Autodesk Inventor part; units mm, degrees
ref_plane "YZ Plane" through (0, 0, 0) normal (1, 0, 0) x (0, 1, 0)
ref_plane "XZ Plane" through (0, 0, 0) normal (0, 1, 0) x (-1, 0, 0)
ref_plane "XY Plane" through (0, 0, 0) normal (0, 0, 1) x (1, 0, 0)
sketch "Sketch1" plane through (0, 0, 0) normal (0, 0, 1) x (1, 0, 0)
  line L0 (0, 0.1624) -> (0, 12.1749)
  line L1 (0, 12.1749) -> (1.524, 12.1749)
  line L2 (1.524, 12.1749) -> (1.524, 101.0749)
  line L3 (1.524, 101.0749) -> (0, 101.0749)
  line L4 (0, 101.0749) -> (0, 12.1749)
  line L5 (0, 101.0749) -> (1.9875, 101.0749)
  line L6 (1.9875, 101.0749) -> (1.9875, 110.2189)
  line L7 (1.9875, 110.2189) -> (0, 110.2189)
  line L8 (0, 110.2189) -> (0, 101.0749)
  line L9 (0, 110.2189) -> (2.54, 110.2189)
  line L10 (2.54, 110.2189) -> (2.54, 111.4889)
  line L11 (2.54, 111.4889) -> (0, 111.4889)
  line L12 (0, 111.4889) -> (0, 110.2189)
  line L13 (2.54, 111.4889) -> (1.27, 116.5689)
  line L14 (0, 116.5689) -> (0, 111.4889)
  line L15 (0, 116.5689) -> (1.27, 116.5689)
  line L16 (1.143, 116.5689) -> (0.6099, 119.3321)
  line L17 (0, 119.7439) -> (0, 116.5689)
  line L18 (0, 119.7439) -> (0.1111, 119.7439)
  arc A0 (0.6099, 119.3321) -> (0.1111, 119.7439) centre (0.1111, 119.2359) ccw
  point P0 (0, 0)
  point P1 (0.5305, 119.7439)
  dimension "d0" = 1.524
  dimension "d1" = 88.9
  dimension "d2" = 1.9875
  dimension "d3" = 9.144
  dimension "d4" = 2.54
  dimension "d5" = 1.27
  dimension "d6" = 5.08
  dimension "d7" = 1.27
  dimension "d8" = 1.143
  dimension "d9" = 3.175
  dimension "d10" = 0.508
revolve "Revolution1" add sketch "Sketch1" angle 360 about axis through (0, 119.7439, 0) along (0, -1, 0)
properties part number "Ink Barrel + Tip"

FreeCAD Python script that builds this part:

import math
import FreeCAD as App
import Part
import Sketcher

V = App.Vector
Q = App.Units.Quantity

doc = App.newDocument("Part")
body = doc.addObject("PartDesign::Body", "Body")

# Sketch on XY plane
sketch1 = body.newObject("Sketcher::SketchObject", "Sketch")
sketch1.AttachmentSupport = (doc.getObject("XY_Plane"), [""])
sketch1.MapMode = "FlatFace"
sketch1.addGeometry(Part.LineSegment(V(0, 12.17, 0), V(1.52, 12.17, 0)), False)
sketch1.addGeometry(Part.LineSegment(V(1.52, 12.17, 0), V(1.52, 101.07, 0)), False)
sketch1.addGeometry(Part.LineSegment(V(1.52, 101.07, 0), V(1.99, 101.07, 0)), False)
sketch1.addGeometry(Part.LineSegment(V(1.99, 101.07, 0), V(1.99, 110.22, 0)), False)
sketch1.addGeometry(Part.LineSegment(V(1.99, 110.22, 0), V(2.54, 110.22, 0)), False)
sketch1.addGeometry(Part.LineSegment(V(2.54, 110.22, 0), V(2.54, 111.49, 0)), False)
sketch1.addGeometry(Part.LineSegment(V(2.54, 111.49, 0), V(1.27, 116.57, 0)), False)
sketch1.addGeometry(Part.LineSegment(V(1.27, 116.57, 0), V(1.14, 116.57, 0)), False)
sketch1.addGeometry(Part.LineSegment(V(1.14, 116.57, 0), V(0.61, 119.33, 0)), False)
sketch1.addGeometry(Part.ArcOfCircle(Part.Circle(V(0.11, 119.24, 0), V(0, 0, 1), 0.51), math.radians(11), math.radians(90)), False)
sketch1.addGeometry(Part.LineSegment(V(0.11, 119.74, 0), V(0, 119.74, 0)), False)
sketch1.addGeometry(Part.LineSegment(V(0, 119.74, 0), V(0, 12.17, 0)), False)
sketch1.addConstraint(Sketcher.Constraint("Coincident", 0, 2, 1, 1))
sketch1.addConstraint(Sketcher.Constraint("Coincident", 1, 2, 2, 1))
sketch1.addConstraint(Sketcher.Constraint("Coincident", 2, 2, 3, 1))
sketch1.addConstraint(Sketcher.Constraint("Coincident", 3, 2, 4, 1))
sketch1.addConstraint(Sketcher.Constraint("Coincident", 4, 2, 5, 1))
sketch1.addConstraint(Sketcher.Constraint("Coincident", 5, 2, 6, 1))
sketch1.addConstraint(Sketcher.Constraint("Coincident", 6, 2, 7, 1))
sketch1.addConstraint(Sketcher.Constraint("Coincident", 7, 2, 8, 1))
sketch1.addConstraint(Sketcher.Constraint("Tangent", 8, 2, 9, 1))
sketch1.addConstraint(Sketcher.Constraint("Tangent", 9, 2, 10, 1))
sketch1.addConstraint(Sketcher.Constraint("Coincident", 10, 2, 11, 1))
sketch1.addConstraint(Sketcher.Constraint("Coincident", 11, 2, 0, 1))
sketch1.addConstraint(Sketcher.Constraint("Horizontal", 0))
sketch1.addConstraint(Sketcher.Constraint("Vertical", 1))
sketch1.addConstraint(Sketcher.Constraint("Horizontal", 2))
sketch1.addConstraint(Sketcher.Constraint("Vertical", 3))
sketch1.addConstraint(Sketcher.Constraint("Horizontal", 4))
sketch1.addConstraint(Sketcher.Constraint("Vertical", 5))
sketch1.addConstraint(Sketcher.Constraint("Horizontal", 7))
sketch1.addConstraint(Sketcher.Constraint("Horizontal", 10))
sketch1.addConstraint(Sketcher.Constraint("Vertical", 11))
sketch1.addConstraint(Sketcher.Constraint("PointOnObject", 10, 2, -2))
sketch1.addConstraint(Sketcher.Constraint("Radius", 9, Q("0.02 in")))
sketch1.addConstraint(Sketcher.Constraint("DistanceY", 1, 1, 1, 2, Q("3.5 in")))
sketch1.addConstraint(Sketcher.Constraint("DistanceX", 0, 1, 0, 2, Q("0.06 in")))
sketch1.addConstraint(Sketcher.Constraint("DistanceY", 3, 1, 3, 2, Q("0.36 in")))
sketch1.addConstraint(Sketcher.Constraint("DistanceY", 5, 1, 5, 2, Q("0.05 in")))
sketch1.addConstraint(Sketcher.Constraint("DistanceX", -1, 1, 4, 2, Q("0.1 in")))
sketch1.addConstraint(Sketcher.Constraint("DistanceY", 5, 2, 6, 2, Q("0.2 in")))
sketch1.addConstraint(Sketcher.Constraint("DistanceX", -1, 1, 6, 2, Q("0.05 in")))
sketch1.addConstraint(Sketcher.Constraint("DistanceX", -1, 1, 7, 2, Q("0.045 in")))
sketch1.addConstraint(Sketcher.Constraint("DistanceY", 7, 2, 9, 2, Q("0.125 in")))
sketch1.addConstraint(Sketcher.Constraint("DistanceX", -1, 1, 2, 2, 1.9875))
sketch1.addConstraint(Sketcher.Constraint("Angle", 8, Q("100.9198 deg")))
sketch1.addConstraint(Sketcher.Constraint("DistanceY", -1, 1, 9, 3, 119.236))
revolution = body.newObject("PartDesign::Revolution", "Revolution")
revolution.Profile = sketch1
revolution.ReferenceAxis = (sketch1, ["V_Axis"])
revolution.Angle = 360

doc.recompute()
